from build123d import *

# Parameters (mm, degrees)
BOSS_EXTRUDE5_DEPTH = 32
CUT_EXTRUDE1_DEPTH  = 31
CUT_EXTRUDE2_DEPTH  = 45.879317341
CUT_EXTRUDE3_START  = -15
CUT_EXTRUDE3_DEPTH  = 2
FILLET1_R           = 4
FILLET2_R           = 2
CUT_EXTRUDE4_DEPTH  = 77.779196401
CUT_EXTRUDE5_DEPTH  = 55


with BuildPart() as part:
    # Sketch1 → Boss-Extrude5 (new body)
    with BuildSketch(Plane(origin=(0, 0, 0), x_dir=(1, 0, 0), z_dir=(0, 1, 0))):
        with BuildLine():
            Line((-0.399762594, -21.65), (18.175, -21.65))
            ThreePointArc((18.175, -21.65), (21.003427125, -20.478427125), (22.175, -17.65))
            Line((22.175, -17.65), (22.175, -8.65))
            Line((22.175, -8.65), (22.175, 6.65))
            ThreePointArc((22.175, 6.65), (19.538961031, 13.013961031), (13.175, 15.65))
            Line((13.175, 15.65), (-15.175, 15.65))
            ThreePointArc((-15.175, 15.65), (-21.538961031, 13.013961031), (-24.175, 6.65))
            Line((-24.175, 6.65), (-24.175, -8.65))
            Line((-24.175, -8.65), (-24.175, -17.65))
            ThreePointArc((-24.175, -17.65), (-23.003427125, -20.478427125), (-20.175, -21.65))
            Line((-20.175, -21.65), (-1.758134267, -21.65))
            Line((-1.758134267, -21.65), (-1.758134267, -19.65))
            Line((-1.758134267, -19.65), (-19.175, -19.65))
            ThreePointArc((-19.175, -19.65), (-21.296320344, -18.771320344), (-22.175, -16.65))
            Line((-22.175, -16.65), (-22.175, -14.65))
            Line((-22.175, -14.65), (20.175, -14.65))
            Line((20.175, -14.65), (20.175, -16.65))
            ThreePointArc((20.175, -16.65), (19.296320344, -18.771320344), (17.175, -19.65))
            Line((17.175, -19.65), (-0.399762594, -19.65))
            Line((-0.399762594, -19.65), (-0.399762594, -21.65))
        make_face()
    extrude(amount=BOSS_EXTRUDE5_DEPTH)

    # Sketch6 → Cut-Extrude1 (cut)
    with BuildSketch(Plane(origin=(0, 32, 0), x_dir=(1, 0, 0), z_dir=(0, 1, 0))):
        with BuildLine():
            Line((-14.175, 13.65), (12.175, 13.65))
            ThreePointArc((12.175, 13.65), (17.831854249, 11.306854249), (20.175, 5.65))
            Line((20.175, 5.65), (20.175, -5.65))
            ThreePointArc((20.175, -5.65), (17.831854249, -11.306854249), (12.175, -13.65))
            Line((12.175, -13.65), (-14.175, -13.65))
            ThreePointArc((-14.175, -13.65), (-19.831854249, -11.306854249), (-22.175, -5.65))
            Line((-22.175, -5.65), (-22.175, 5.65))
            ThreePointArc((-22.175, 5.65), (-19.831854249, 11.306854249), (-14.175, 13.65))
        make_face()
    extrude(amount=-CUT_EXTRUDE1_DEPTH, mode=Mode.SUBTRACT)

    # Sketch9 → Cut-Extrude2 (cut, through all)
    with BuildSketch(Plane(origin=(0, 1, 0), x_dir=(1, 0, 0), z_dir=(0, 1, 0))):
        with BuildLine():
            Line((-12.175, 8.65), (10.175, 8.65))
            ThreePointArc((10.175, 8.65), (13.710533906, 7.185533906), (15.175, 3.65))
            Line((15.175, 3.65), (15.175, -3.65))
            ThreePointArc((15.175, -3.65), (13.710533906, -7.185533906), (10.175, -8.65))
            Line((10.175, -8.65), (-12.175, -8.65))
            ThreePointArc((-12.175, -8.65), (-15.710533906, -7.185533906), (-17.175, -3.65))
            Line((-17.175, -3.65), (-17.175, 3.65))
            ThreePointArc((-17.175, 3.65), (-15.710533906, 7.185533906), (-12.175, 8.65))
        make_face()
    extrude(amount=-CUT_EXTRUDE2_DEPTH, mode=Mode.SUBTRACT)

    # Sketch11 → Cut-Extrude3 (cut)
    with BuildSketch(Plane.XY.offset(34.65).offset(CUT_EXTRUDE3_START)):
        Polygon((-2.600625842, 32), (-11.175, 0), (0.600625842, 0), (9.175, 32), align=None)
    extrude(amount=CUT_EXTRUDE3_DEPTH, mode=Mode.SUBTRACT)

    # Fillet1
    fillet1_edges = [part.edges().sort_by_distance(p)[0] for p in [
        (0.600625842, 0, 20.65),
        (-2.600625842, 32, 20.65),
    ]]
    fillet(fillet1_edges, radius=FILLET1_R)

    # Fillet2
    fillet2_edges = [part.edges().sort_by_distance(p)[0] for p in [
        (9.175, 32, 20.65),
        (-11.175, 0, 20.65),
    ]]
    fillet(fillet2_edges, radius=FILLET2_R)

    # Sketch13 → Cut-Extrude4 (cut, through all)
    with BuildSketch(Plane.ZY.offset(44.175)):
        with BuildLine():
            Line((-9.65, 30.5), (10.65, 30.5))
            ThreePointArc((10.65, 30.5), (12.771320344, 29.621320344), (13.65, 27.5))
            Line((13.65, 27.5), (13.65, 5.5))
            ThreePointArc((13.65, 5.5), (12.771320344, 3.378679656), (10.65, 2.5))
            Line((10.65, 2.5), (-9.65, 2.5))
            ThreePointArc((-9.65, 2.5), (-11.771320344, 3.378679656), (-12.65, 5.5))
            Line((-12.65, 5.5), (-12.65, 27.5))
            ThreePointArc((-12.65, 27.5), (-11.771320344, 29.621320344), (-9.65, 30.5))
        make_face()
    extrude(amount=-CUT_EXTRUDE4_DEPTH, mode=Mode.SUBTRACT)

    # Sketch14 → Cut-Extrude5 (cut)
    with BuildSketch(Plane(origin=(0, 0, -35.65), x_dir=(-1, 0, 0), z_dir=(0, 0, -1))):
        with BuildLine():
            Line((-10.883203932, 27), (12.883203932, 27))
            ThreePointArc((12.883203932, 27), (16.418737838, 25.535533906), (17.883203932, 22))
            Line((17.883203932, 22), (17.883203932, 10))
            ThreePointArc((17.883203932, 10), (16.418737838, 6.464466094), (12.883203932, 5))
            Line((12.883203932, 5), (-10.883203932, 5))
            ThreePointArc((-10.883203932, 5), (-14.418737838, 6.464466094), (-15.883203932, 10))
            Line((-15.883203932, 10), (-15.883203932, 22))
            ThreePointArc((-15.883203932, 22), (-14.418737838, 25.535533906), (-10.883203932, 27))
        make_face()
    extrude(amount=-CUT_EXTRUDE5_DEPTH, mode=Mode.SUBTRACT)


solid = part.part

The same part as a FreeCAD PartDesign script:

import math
import FreeCAD as App
import Part
import Sketcher

V = App.Vector
Q = App.Units.Quantity


def edges_at(feature, points):
    """Names of the edges that pass closest to the given points."""
    edges = feature.Shape.Edges
    near = lambda p: min(range(len(edges)), key=lambda i: edges[i].distToShape(Part.Vertex(*p))[0])
    return sorted({f"Edge{near(p) + 1}" for p in points})


def add_polygon(sketch, points):
    """Adds a closed chain of lines whose ends are joined by coincident constraints."""
    first, n = sketch.GeometryCount, len(points)
    for a, b in zip(points, points[1:] + points[:1]):
        sketch.addGeometry(Part.LineSegment(App.Vector(*a, 0), App.Vector(*b, 0)), False)
    for i in range(n):
        sketch.addConstraint(Sketcher.Constraint("Coincident", first + i, 2, first + (i + 1) % n, 1))

doc = App.newDocument("Part")
body = doc.addObject("PartDesign::Body", "Body")

# Sketch on XZ plane
sketch1 = doc.addObject("Sketcher::SketchObject", "Sketch")
body.addObject(sketch1)
sketch1.AttachmentSupport = (doc.XZ_Plane, [""])
sketch1.MapMode = "FlatFace"
sketch1.addGeometry([
    Part.LineSegment(V(-0.4, 21.6, 0), V(18.2, 21.6, 0)),  # 0
    Part.ArcOfCircle(Part.Circle(V(18.2, 17.7, 0), V(0, 0, 1), 4), math.radians(0), math.radians(90)),  # 1
    Part.LineSegment(V(22.2, 17.6, 0), V(22.2, -6.7, 0)),  # 2
    Part.ArcOfCircle(Part.Circle(V(13.2, -6.7, 0), V(0, 0, 1), 9), math.radians(-90), math.radians(0)),  # 3
    Part.LineSegment(V(13.2, -15.7, 0), V(-15.2, -15.7, 0)),  # 4
    Part.ArcOfCircle(Part.Circle(V(-15.2, -6.7, 0), V(0, 0, 1), 9), math.radians(180), math.radians(270)),  # 5
    Part.LineSegment(V(-24.2, -6.7, 0), V(-24.2, 17.6, 0)),  # 6
    Part.ArcOfCircle(Part.Circle(V(-20.2, 17.7, 0), V(0, 0, 1), 4), math.radians(90), math.radians(180)),  # 7
    Part.LineSegment(V(-20.2, 21.6, 0), V(-1.8, 21.6, 0)),  # 8
    Part.LineSegment(V(-1.8, 21.6, 0), V(-1.8, 19.6, 0)),  # 9
    Part.LineSegment(V(-1.8, 19.6, 0), V(-19.2, 19.6, 0)),  # 10
    Part.ArcOfCircle(Part.Circle(V(-19.2, 16.7, 0), V(0, 0, 1), 3), math.radians(90), math.radians(180)),  # 11
    Part.LineSegment(V(-22.2, 16.6, 0), V(-22.2, 14.7, 0)),  # 12
    Part.LineSegment(V(-22.2, 14.7, 0), V(20.2, 14.7, 0)),  # 13
    Part.LineSegment(V(20.2, 14.7, 0), V(20.2, 16.6, 0)),  # 14
    Part.ArcOfCircle(Part.Circle(V(17.2, 16.7, 0), V(0, 0, 1), 3), math.radians(0), math.radians(90)),  # 15
    Part.LineSegment(V(17.2, 19.6, 0), V(-0.4, 19.6, 0)),  # 16
    Part.LineSegment(V(-0.4, 19.6, 0), V(-0.4, 21.6, 0)),  # 17
], False)
sketch1.addConstraint([
    Sketcher.Constraint("Tangent", 0, 2, 1, 2),
    Sketcher.Constraint("Tangent", 1, 1, 2, 1),
    Sketcher.Constraint("Tangent", 2, 2, 3, 2),
    Sketcher.Constraint("Tangent", 3, 1, 4, 1),
    Sketcher.Constraint("Tangent", 4, 2, 5, 2),
    Sketcher.Constraint("Tangent", 5, 1, 6, 1),
    Sketcher.Constraint("Tangent", 6, 2, 7, 2),
    Sketcher.Constraint("Tangent", 7, 1, 8, 1),
    Sketcher.Constraint("Coincident", 8, 2, 9, 1),
    Sketcher.Constraint("Coincident", 9, 2, 10, 1),
    Sketcher.Constraint("Tangent", 10, 2, 11, 1),
    Sketcher.Constraint("Tangent", 11, 2, 12, 1),
    Sketcher.Constraint("Coincident", 12, 2, 13, 1),
    Sketcher.Constraint("Coincident", 13, 2, 14, 1),
    Sketcher.Constraint("Tangent", 14, 2, 15, 1),
    Sketcher.Constraint("Tangent", 15, 2, 16, 1),
    Sketcher.Constraint("Coincident", 16, 2, 17, 1),
    Sketcher.Constraint("Coincident", 17, 2, 0, 1),
    Sketcher.Constraint("Horizontal", 0),
    Sketcher.Constraint("Vertical", 2),
    Sketcher.Constraint("Horizontal", 4),
    Sketcher.Constraint("Vertical", 6),
    Sketcher.Constraint("Horizontal", 8),
    Sketcher.Constraint("Vertical", 9),
    Sketcher.Constraint("Horizontal", 10),
    Sketcher.Constraint("Vertical", 12),
    Sketcher.Constraint("Horizontal", 13),
    Sketcher.Constraint("Vertical", 14),
    Sketcher.Constraint("Horizontal", 16),
    Sketcher.Constraint("Vertical", 17),
    Sketcher.Constraint("Equal", 3, 5),
    Sketcher.Constraint("Equal", 1, 7),
    Sketcher.Constraint("Equal", 11, 15),
    Sketcher.Constraint("Horizontal", 1, 3, 7, 3),
    Sketcher.Constraint("Horizontal", 11, 3, 15, 3),
    Sketcher.Constraint("Equal", 9, 12),
    Sketcher.Constraint("Radius", 1, Q("4 mm")),
    Sketcher.Constraint("Radius", 3, Q("9 mm")),
    Sketcher.Constraint("Radius", 11, Q("3 mm")),
    Sketcher.Constraint("DistanceY", 9, 2, 9, 1, Q("2 mm")),
    Sketcher.Constraint("DistanceY", 2, 2, 2, 1, Q("24.3 mm")),
    Sketcher.Constraint("DistanceX", 7, 3, 11, 3, Q("1 mm")),
    Sketcher.Constraint("DistanceX", 15, 3, 1, 3, Q("1 mm")),
    Sketcher.Constraint("DistanceX", 4, 2, 4, 1, Q("28.35 mm")),
    Sketcher.Constraint("DistanceY", -1, 1, 1, 3, Q("17.65 mm")),
    Sketcher.Constraint("DistanceX", -1, 1, 1, 3, Q("18.175 mm")),
    Sketcher.Constraint("DistanceX", 0, 1, 0, 2, Q("18.574763 mm")),
    Sketcher.Constraint("DistanceX", 8, 1, 8, 2, Q("18.416866 mm")),
])
pad1 = doc.addObject("PartDesign::Pad", "Pad")
body.addObject(pad1)
pad1.Profile = sketch1
pad1.Length = 32
pad1.Reversed = True

# Sketch on XZ plane
sketch2 = doc.addObject("Sketcher::SketchObject", "Sketch001")
body.addObject(sketch2)
sketch2.AttachmentSupport = (doc.XZ_Plane, [""])
sketch2.MapMode = "FlatFace"
sketch2.AttachmentOffset = App.Placement(V(0, 0, -32), App.Rotation())
sketch2.addGeometry([
    Part.LineSegment(V(12, -14, 0), V(-14, -14, 0)),  # 0
    Part.ArcOfCircle(Part.Circle(V(-14, -6, 0), V(0, 0, 1), 8), math.radians(-180), math.radians(-90)),  # 1
    Part.LineSegment(V(-22, -6, 0), V(-22, 6, 0)),  # 2
    Part.ArcOfCircle(Part.Circle(V(-14, 6, 0), V(0, 0, 1), 8), math.radians(90), math.radians(180)),  # 3
    Part.LineSegment(V(-14, 14, 0), V(12, 14, 0)),  # 4
    Part.ArcOfCircle(Part.Circle(V(12, 6, 0), V(0, 0, 1), 8), math.radians(0), math.radians(90)),  # 5
    Part.LineSegment(V(20, 6, 0), V(20, -6, 0)),  # 6
    Part.ArcOfCircle(Part.Circle(V(12, -6, 0), V(0, 0, 1), 8), math.radians(-90), math.radians(0)),  # 7
], False)
sketch2.addConstraint([
    Sketcher.Constraint("Tangent", 0, 2, 1, 2),
    Sketcher.Constraint("Tangent", 1, 1, 2, 1),
    Sketcher.Constraint("Tangent", 2, 2, 3, 2),
    Sketcher.Constraint("Tangent", 3, 1, 4, 1),
    Sketcher.Constraint("Tangent", 4, 2, 5, 2),
    Sketcher.Constraint("Tangent", 5, 1, 6, 1),
    Sketcher.Constraint("Tangent", 6, 2, 7, 2),
    Sketcher.Constraint("Tangent", 7, 1, 0, 1),
    Sketcher.Constraint("Horizontal", 0),
    Sketcher.Constraint("Vertical", 2),
    Sketcher.Constraint("Horizontal", 4),
    Sketcher.Constraint("Vertical", 6),
    Sketcher.Constraint("Equal", 1, 3),
    Sketcher.Constraint("Equal", 3, 5),
    Sketcher.Constraint("Equal", 5, 7),
    Sketcher.Constraint("Radius", 1, Q("8 mm")),
    Sketcher.Constraint("DistanceY", 2, 1, 2, 2, Q("11.3 mm")),
    Sketcher.Constraint("DistanceX", 0, 2, 0, 1, Q("26.35 mm")),
    Sketcher.Constraint("DistanceY", 1, 3, -1, 1, Q("5.65 mm")),
    Sketcher.Constraint("DistanceX", 1, 3, -1, 1, Q("14.175 mm")),
])
pocket1 = doc.addObject("PartDesign::Pocket", "Pocket")
body.addObject(pocket1)
pocket1.Profile = sketch2
pocket1.Length = 31
pocket1.Reversed = True

# Sketch on XZ plane
sketch3 = doc.addObject("Sketcher::SketchObject", "Sketch002")
body.addObject(sketch3)
sketch3.AttachmentSupport = (doc.XZ_Plane, [""])
sketch3.MapMode = "FlatFace"
sketch3.AttachmentOffset = App.Placement(V(0, 0, -1), App.Rotation())
sketch3.addGeometry([
    Part.LineSegment(V(10, -9, 0), V(-12, -9, 0)),  # 0
    Part.ArcOfCircle(Part.Circle(V(-12, -4, 0), V(0, 0, 1), 5), math.radians(180), math.radians(270)),  # 1
    Part.LineSegment(V(-17, -4, 0), V(-17, 4, 0)),  # 2
    Part.ArcOfCircle(Part.Circle(V(-12, 4, 0), V(0, 0, 1), 5), math.radians(90), math.radians(180)),  # 3
    Part.LineSegment(V(-12, 9, 0), V(10, 9, 0)),  # 4
    Part.ArcOfCircle(Part.Circle(V(10, 4, 0), V(0, 0, 1), 5), math.radians(0), math.radians(90)),  # 5
    Part.LineSegment(V(15, 4, 0), V(15, -4, 0)),  # 6
    Part.ArcOfCircle(Part.Circle(V(10, -4, 0), V(0, 0, 1), 5), math.radians(-90), math.radians(0)),  # 7
], False)
sketch3.addConstraint([
    Sketcher.Constraint("Tangent", 0, 2, 1, 2),
    Sketcher.Constraint("Tangent", 1, 1, 2, 1),
    Sketcher.Constraint("Tangent", 2, 2, 3, 2),
    Sketcher.Constraint("Tangent", 3, 1, 4, 1),
    Sketcher.Constraint("Tangent", 4, 2, 5, 2),
    Sketcher.Constraint("Tangent", 5, 1, 6, 1),
    Sketcher.Constraint("Tangent", 6, 2, 7, 2),
    Sketcher.Constraint("Tangent", 7, 1, 0, 1),
    Sketcher.Constraint("Horizontal", 0),
    Sketcher.Constraint("Vertical", 2),
    Sketcher.Constraint("Horizontal", 4),
    Sketcher.Constraint("Vertical", 6),
    Sketcher.Constraint("Equal", 1, 3),
    Sketcher.Constraint("Equal", 3, 5),
    Sketcher.Constraint("Equal", 5, 7),
    Sketcher.Constraint("Radius", 1, Q("5 mm")),
    Sketcher.Constraint("DistanceY", 2, 1, 2, 2, Q("7.3 mm")),
    Sketcher.Constraint("DistanceX", 0, 2, 0, 1, Q("22.35 mm")),
    Sketcher.Constraint("DistanceY", 1, 3, -1, 1, Q("3.65 mm")),
    Sketcher.Constraint("DistanceX", 1, 3, -1, 1, Q("12.175 mm")),
])
pocket2 = doc.addObject("PartDesign::Pocket", "Pocket001")
body.addObject(pocket2)
pocket2.Profile = sketch3
pocket2.Type = "ThroughAll"
pocket2.Reversed = True

# Sketch on XY plane
sketch4 = doc.addObject("Sketcher::SketchObject", "Sketch003")
body.addObject(sketch4)
sketch4.AttachmentSupport = (doc.XY_Plane, [""])
sketch4.MapMode = "FlatFace"
sketch4.AttachmentOffset = App.Placement(V(0, 0, 19.65), App.Rotation())
add_polygon(sketch4, [(-3, 32), (-11, 0), (1, 0), (9, 32)])  # lines 0-3
sketch4.addConstraint([
    Sketcher.Constraint("Horizontal", 1),
    Sketcher.Constraint("Horizontal", 3),
    Sketcher.Constraint("PointOnObject", 0, 2, -1),
    Sketcher.Constraint("Parallel", 0, 2),
    Sketcher.Constraint("Angle", 0, Q("-105 deg")),
    Sketcher.Constraint("DistanceY", -1, 1, 2, 2, Q("32 mm")),
    Sketcher.Constraint("DistanceX", 0, 2, 2, 2, Q("20.35 mm")),
    Sketcher.Constraint("DistanceX", 0, 2, -1, 1, Q("11.175 mm")),
])
pocket3 = doc.addObject("PartDesign::Pocket", "Pocket002")
body.addObject(pocket3)
pocket3.Profile = sketch4
pocket3.Length = 2
pocket3.Reversed = True
doc.recompute()

fillet = doc.addObject("PartDesign::Fillet", "Fillet")
body.addObject(fillet)
fillet.Base = (pocket3, edges_at(pocket3, [(0.601, 0, 20.65), (-2.601, 32, 20.65)]))
fillet.Radius = 4
doc.recompute()

fillet2 = doc.addObject("PartDesign::Fillet", "Fillet001")
body.addObject(fillet2)
fillet2.Base = (fillet, edges_at(fillet, [(9.175, 32, 20.65), (-11.175, 0, 20.65)]))
fillet2.Radius = 2

# Sketch on YZ plane
sketch5 = doc.addObject("Sketcher::SketchObject", "Sketch004")
body.addObject(sketch5)
sketch5.AttachmentSupport = (doc.YZ_Plane, [""])
sketch5.MapMode = "FlatFace"
sketch5.AttachmentOffset = App.Placement(V(0, 0, -44.175), App.Rotation())
sketch5.addGeometry([
    Part.LineSegment(V(30.5, 10.7, 0), V(30.5, -9.7, 0)),  # 0
    Part.ArcOfCircle(Part.Circle(V(27.5, -9.7, 0), V(0, 0, 1), 3), math.radians(-90), math.radians(0)),  # 1
    Part.LineSegment(V(27.5, -12.7, 0), V(5.5, -12.7, 0)),  # 2
    Part.ArcOfCircle(Part.Circle(V(5.5, -9.7, 0), V(0, 0, 1), 3), math.radians(180), math.radians(270)),  # 3
    Part.LineSegment(V(2.5, -9.7, 0), V(2.5, 10.7, 0)),  # 4
    Part.ArcOfCircle(Part.Circle(V(5.5, 10.7, 0), V(0, 0, 1), 3), math.radians(90), math.radians(180)),  # 5
    Part.LineSegment(V(5.5, 13.7, 0), V(27.5, 13.7, 0)),  # 6
    Part.ArcOfCircle(Part.Circle(V(27.5, 10.7, 0), V(0, 0, 1), 3), math.radians(0), math.radians(90)),  # 7
], False)
sketch5.addConstraint([
    Sketcher.Constraint("Tangent", 0, 2, 1, 2),
    Sketcher.Constraint("Tangent", 1, 1, 2, 1),
    Sketcher.Constraint("Tangent", 2, 2, 3, 2),
    Sketcher.Constraint("Tangent", 3, 1, 4, 1),
    Sketcher.Constraint("Tangent", 4, 2, 5, 2),
    Sketcher.Constraint("Tangent", 5, 1, 6, 1),
    Sketcher.Constraint("Tangent", 6, 2, 7, 2),
    Sketcher.Constraint("Tangent", 7, 1, 0, 1),
    Sketcher.Constraint("Vertical", 0),
    Sketcher.Constraint("Horizontal", 2),
    Sketcher.Constraint("Vertical", 4),
    Sketcher.Constraint("Horizontal", 6),
    Sketcher.Constraint("Equal", 1, 3),
    Sketcher.Constraint("Equal", 3, 5),
    Sketcher.Constraint("Equal", 5, 7),
    Sketcher.Constraint("Radius", 1, Q("3 mm")),
    Sketcher.Constraint("DistanceX", 2, 2, 2, 1, Q("22 mm")),
    Sketcher.Constraint("DistanceY", 0, 2, 0, 1, Q("20.3 mm")),
    Sketcher.Constraint("DistanceX", -1, 1, 1, 3, Q("27.5 mm")),
    Sketcher.Constraint("DistanceY", 1, 3, -1, 1, Q("9.65 mm")),
])
pocket4 = doc.addObject("PartDesign::Pocket", "Pocket003")
body.addObject(pocket4)
pocket4.Profile = sketch5
pocket4.Type = "ThroughAll"
pocket4.Reversed = True

# Sketch on XY plane
sketch6 = doc.addObject("Sketcher::SketchObject", "Sketch005")
body.addObject(sketch6)
sketch6.AttachmentSupport = (doc.XY_Plane, [""])
sketch6.MapMode = "FlatFace"
sketch6.AttachmentOffset = App.Placement(V(0, 0, -35.65), App.Rotation())
sketch6.addGeometry([
    Part.LineSegment(V(-13, 27, 0), V(11, 27, 0)),  # 0
    Part.ArcOfCircle(Part.Circle(V(11, 22, 0), V(0, 0, 1), 5), math.radians(0), math.radians(90)),  # 1
    Part.LineSegment(V(16, 22, 0), V(16, 10, 0)),  # 2
    Part.ArcOfCircle(Part.Circle(V(11, 10, 0), V(0, 0, 1), 5), math.radians(-90), math.radians(0)),  # 3
    Part.LineSegment(V(11, 5, 0), V(-13, 5, 0)),  # 4
    Part.ArcOfCircle(Part.Circle(V(-13, 10, 0), V(0, 0, 1), 5), math.radians(180), math.radians(270)),  # 5
    Part.LineSegment(V(-18, 10, 0), V(-18, 22, 0)),  # 6
    Part.ArcOfCircle(Part.Circle(V(-13, 22, 0), V(0, 0, 1), 5), math.radians(90), math.radians(180)),  # 7
], False)
sketch6.addConstraint([
    Sketcher.Constraint("Tangent", 0, 2, 1, 2),
    Sketcher.Constraint("Tangent", 1, 1, 2, 1),
    Sketcher.Constraint("Tangent", 2, 2, 3, 2),
    Sketcher.Constraint("Tangent", 3, 1, 4, 1),
    Sketcher.Constraint("Tangent", 4, 2, 5, 2),
    Sketcher.Constraint("Tangent", 5, 1, 6, 1),
    Sketcher.Constraint("Tangent", 6, 2, 7, 2),
    Sketcher.Constraint("Tangent", 7, 1, 0, 1),
    Sketcher.Constraint("Horizontal", 0),
    Sketcher.Constraint("Vertical", 2),
    Sketcher.Constraint("Horizontal", 4),
    Sketcher.Constraint("Vertical", 6),
    Sketcher.Constraint("Equal", 1, 3),
    Sketcher.Constraint("Equal", 3, 5),
    Sketcher.Constraint("Equal", 5, 7),
    Sketcher.Constraint("Radius", 1, Q("5 mm")),
    Sketcher.Constraint("DistanceY", 2, 2, 2, 1, Q("12 mm")),
    Sketcher.Constraint("DistanceY", -1, 1, 1, 3, Q("22 mm")),
    Sketcher.Constraint("DistanceX", 0, 1, 0, 2, Q("23.766408 mm")),
    Sketcher.Constraint("DistanceX", -1, 1, 1, 3, Q("10.883204 mm")),
])
pocket5 = doc.addObject("PartDesign::Pocket", "Pocket004")
body.addObject(pocket5)
pocket5.Profile = sketch6
pocket5.Length = 55
pocket5.Reversed = True

doc.recompute()
